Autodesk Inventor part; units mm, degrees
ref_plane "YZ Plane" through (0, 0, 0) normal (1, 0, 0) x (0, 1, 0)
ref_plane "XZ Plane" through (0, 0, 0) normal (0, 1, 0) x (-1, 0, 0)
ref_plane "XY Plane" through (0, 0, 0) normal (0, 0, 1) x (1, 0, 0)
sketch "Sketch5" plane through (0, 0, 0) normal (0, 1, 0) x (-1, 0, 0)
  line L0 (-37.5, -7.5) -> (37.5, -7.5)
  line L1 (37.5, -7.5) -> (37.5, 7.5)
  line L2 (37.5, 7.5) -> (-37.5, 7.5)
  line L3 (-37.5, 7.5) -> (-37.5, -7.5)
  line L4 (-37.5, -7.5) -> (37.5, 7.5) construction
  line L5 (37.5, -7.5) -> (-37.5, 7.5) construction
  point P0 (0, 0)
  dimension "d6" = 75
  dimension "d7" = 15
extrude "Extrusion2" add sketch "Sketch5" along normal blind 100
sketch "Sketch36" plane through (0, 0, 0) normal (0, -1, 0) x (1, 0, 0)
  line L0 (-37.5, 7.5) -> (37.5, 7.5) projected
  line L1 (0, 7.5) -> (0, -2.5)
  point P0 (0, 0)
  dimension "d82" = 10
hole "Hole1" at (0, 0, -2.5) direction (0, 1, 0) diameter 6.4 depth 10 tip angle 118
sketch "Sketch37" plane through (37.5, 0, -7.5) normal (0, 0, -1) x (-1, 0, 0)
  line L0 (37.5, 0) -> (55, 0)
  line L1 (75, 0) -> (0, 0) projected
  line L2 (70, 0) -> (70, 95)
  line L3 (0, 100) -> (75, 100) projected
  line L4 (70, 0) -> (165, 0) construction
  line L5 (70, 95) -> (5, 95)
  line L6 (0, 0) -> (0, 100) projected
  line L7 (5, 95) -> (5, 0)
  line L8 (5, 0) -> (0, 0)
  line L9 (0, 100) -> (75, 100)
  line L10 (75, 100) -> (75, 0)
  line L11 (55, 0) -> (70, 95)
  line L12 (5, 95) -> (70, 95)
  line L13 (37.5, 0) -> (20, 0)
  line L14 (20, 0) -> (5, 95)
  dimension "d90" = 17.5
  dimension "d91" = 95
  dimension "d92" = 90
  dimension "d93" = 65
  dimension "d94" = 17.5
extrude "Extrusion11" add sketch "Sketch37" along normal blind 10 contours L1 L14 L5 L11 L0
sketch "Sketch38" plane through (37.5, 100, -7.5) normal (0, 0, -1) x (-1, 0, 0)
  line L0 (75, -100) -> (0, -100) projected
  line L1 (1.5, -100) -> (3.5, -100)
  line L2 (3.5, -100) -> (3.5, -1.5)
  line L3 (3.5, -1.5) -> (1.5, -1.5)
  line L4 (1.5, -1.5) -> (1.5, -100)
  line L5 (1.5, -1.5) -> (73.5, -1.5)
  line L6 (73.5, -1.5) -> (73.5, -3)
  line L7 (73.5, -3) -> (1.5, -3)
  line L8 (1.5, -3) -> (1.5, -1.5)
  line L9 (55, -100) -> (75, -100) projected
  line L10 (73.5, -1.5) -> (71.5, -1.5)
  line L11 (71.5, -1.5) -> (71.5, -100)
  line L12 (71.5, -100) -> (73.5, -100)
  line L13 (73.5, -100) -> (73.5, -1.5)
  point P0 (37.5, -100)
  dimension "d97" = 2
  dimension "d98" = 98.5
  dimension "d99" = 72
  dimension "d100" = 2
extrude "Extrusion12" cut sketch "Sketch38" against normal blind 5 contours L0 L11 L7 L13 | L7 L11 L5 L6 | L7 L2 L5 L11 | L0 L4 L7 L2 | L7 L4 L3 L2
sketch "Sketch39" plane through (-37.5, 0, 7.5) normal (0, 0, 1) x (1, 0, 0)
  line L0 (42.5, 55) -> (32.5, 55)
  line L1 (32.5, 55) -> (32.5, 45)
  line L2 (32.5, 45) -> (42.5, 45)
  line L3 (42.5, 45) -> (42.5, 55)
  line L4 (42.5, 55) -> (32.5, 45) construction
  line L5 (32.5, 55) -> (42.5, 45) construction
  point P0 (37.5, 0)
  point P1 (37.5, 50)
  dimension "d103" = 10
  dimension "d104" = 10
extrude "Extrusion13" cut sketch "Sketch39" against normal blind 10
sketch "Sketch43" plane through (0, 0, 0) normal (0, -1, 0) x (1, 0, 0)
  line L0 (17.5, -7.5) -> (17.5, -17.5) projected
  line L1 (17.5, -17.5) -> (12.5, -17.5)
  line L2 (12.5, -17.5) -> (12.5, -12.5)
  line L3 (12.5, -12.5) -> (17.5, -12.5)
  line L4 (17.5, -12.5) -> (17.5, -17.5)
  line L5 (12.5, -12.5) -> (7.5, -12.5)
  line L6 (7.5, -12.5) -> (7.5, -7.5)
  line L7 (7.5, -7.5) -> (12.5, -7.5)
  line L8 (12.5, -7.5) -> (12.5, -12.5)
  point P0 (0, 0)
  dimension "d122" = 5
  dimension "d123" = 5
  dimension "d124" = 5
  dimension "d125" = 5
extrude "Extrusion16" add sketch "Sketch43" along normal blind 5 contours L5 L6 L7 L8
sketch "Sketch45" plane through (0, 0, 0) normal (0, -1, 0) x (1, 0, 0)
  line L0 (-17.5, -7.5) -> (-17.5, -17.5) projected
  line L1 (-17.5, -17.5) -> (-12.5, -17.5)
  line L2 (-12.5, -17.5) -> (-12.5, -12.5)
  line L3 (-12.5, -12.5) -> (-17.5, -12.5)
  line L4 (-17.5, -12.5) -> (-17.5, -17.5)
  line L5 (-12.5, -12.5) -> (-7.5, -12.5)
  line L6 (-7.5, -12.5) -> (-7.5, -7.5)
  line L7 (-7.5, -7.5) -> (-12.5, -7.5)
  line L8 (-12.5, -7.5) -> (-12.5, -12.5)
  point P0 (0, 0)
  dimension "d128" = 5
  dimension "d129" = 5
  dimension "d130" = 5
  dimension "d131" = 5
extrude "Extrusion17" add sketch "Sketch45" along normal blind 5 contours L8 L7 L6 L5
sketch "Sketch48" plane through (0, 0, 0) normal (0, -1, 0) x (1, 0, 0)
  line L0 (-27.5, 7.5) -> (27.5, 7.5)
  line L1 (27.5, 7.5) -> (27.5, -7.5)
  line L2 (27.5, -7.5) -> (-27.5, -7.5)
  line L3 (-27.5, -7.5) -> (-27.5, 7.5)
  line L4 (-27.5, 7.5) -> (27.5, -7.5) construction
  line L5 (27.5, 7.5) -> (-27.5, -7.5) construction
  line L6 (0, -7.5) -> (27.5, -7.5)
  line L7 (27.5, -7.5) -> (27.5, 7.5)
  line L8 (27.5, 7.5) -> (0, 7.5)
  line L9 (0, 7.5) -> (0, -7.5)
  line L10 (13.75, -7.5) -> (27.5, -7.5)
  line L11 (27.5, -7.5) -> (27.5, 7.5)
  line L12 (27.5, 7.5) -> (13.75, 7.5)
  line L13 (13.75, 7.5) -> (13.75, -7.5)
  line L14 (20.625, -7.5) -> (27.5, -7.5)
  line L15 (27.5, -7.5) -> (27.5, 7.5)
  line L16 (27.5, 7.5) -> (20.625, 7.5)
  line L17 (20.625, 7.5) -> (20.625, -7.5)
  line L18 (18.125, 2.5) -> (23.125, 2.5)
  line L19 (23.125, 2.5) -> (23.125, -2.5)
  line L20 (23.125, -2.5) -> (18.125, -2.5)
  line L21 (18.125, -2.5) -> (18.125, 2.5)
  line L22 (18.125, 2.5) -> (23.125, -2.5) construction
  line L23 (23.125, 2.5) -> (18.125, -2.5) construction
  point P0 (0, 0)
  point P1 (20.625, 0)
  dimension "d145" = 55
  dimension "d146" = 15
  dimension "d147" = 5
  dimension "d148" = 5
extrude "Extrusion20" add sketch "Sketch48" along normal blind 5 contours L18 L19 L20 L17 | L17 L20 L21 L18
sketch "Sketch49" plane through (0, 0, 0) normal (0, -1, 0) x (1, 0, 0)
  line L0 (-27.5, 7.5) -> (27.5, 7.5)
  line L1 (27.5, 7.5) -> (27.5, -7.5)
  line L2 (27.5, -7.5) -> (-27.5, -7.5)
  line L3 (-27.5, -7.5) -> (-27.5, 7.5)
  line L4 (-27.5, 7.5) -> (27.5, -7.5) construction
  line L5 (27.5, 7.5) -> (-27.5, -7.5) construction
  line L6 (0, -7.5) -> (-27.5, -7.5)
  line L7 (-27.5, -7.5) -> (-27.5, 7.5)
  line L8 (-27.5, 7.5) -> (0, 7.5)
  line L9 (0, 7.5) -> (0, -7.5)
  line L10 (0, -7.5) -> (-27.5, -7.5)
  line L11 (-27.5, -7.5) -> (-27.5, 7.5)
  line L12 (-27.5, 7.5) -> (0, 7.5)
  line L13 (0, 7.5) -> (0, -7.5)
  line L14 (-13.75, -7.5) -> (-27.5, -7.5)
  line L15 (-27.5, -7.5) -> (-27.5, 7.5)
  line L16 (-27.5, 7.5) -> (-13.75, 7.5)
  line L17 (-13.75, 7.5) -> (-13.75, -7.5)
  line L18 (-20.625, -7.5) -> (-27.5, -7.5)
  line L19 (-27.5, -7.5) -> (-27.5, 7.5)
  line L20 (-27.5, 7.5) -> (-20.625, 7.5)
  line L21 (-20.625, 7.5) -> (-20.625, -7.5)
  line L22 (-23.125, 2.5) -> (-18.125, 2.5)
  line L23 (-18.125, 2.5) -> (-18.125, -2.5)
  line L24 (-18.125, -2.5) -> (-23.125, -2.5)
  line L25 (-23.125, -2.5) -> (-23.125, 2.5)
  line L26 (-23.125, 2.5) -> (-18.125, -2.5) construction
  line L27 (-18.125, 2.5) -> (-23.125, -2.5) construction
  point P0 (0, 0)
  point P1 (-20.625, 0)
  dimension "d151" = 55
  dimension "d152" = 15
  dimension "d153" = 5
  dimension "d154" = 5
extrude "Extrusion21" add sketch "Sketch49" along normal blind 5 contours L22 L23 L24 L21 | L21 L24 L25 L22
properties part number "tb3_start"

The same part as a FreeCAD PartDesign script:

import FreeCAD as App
import Part
import Sketcher

doc = App.newDocument("Part")
body = doc.addObject("PartDesign::Body", "Body")

# Sketch on XZ plane
sketch1 = doc.addObject("Sketcher::SketchObject", "Sketch")
body.addObject(sketch1)
sketch1.AttachmentSupport = (doc.XZ_Plane, [""])
sketch1.MapMode = "FlatFace"
sketch1.addGeometry([
    Part.LineSegment(App.Vector(37.5, 7.5, 0), App.Vector(37.5, -7.5, 0)),
    Part.LineSegment(App.Vector(37.5, -7.5, 0), App.Vector(-37.5, -7.5, 0)),
    Part.LineSegment(App.Vector(-37.5, -7.5, 0), App.Vector(-37.5, 7.5, 0)),
    Part.LineSegment(App.Vector(-37.5, 7.5, 0), App.Vector(37.5, 7.5, 0)),
], False)
sketch1.addConstraint([
    Sketcher.Constraint("Coincident", 0, 2, 1, 1),
    Sketcher.Constraint("Coincident", 1, 2, 2, 1),
    Sketcher.Constraint("Coincident", 2, 2, 3, 1),
    Sketcher.Constraint("Coincident", 3, 2, 0, 1),
    Sketcher.Constraint("Vertical", 0),
    Sketcher.Constraint("Horizontal", 1),
    Sketcher.Constraint("Vertical", 2),
    Sketcher.Constraint("Horizontal", 3),
    Sketcher.Constraint("Symmetric", 0, 2, 2, 2, -1, 1),
    Sketcher.Constraint("DistanceX", 1, 2, 1, 1, 75.0),
    Sketcher.Constraint("DistanceY", 0, 2, 0, 1, 15.0),
])
pad1 = doc.addObject("PartDesign::Pad", "Pad")
body.addObject(pad1)
pad1.Profile = sketch1
pad1.Length = 100
pad1.Reversed = True

# Sketch on XZ plane
sketch2 = doc.addObject("Sketcher::SketchObject", "Sketch001")
body.addObject(sketch2)
sketch2.AttachmentSupport = (doc.XZ_Plane, [""])
sketch2.MapMode = "FlatFace"
sketch2.addGeometry(Part.Circle(App.Vector(0, -2.5, 0), App.Vector(0, 0, 1), 3.2), False)
sketch2.addConstraint([
    Sketcher.Constraint("PointOnObject", 0, 3, -2),
    Sketcher.Constraint("Diameter", 0, 6.4),
    Sketcher.Constraint("DistanceY", 0, 3, -1, 1, 2.5),
])
doc.recompute()
hole = doc.addObject("PartDesign::Hole", "Hole")
body.addObject(hole)
hole.Profile = sketch2
hole.ThreadType = "None"
hole.Diameter = 6.4
hole.DepthType = "Dimension"
hole.Depth = 10
hole.DrillPoint = "Angled"
hole.DrillPointAngle = 118

# Sketch on XY plane
sketch3 = doc.addObject("Sketcher::SketchObject", "Sketch002")
body.addObject(sketch3)
sketch3.AttachmentSupport = (doc.XY_Plane, [""])
sketch3.MapMode = "FlatFace"
sketch3.AttachmentOffset = App.Placement(App.Vector(0, 0, -7.5), App.Rotation())
sketch3.addGeometry([
    Part.LineSegment(App.Vector(17.5, 0, 0), App.Vector(-17.5, 0, 0)),
    Part.LineSegment(App.Vector(-17.5, 0, 0), App.Vector(-32.5, 95, 0)),
    Part.LineSegment(App.Vector(-32.5, 95, 0), App.Vector(32.5, 95, 0)),
    Part.LineSegment(App.Vector(32.5, 95, 0), App.Vector(17.5, 0, 0)),
], False)
sketch3.addConstraint([
    Sketcher.Constraint("Coincident", 0, 2, 1, 1),
    Sketcher.Constraint("Coincident", 1, 2, 2, 1),
    Sketcher.Constraint("Coincident", 2, 2, 3, 1),
    Sketcher.Constraint("Coincident", 3, 2, 0, 1),
    Sketcher.Constraint("Horizontal", 0),
    Sketcher.Constraint("Horizontal", 2),
    Sketcher.Constraint("Symmetric", 0, 2, 3, 2, -1, 1),
    Sketcher.Constraint("Equal", 1, 3),
    Sketcher.Constraint("DistanceX", 2, 1, 2, 2, 65.0),
    Sketcher.Constraint("DistanceY", -1, 1, 1, 2, 95.0),
    Sketcher.Constraint("DistanceX", 0, 2, -1, 1, 17.5),
])
pad2 = doc.addObject("PartDesign::Pad", "Pad001")
body.addObject(pad2)
pad2.Profile = sketch3
pad2.Length = 10
pad2.Reversed = True

# Sketch on XY plane
sketch4 = doc.addObject("Sketcher::SketchObject", "Sketch003")
body.addObject(sketch4)
sketch4.AttachmentSupport = (doc.XY_Plane, [""])
sketch4.MapMode = "FlatFace"
sketch4.AttachmentOffset = App.Placement(App.Vector(0, 0, -7.5), App.Rotation())
sketch4.addGeometry([
    Part.LineSegment(App.Vector(-34, 0, 0), App.Vector(-36, 0, 0)),  # 0
    Part.LineSegment(App.Vector(-36, 0, 0), App.Vector(-36, 98.5, 0)),  # 1
    Part.LineSegment(App.Vector(-36, 98.5, 0), App.Vector(36, 98.5, 0)),  # 2
    Part.LineSegment(App.Vector(36, 98.5, 0), App.Vector(36, 0, 0)),  # 3
    Part.LineSegment(App.Vector(36, 0, 0), App.Vector(34, 0, 0)),  # 4
    Part.LineSegment(App.Vector(34, 0, 0), App.Vector(34, 97, 0)),  # 5
    Part.LineSegment(App.Vector(34, 97, 0), App.Vector(-34, 97, 0)),  # 6
    Part.LineSegment(App.Vector(-34, 97, 0), App.Vector(-34, 0, 0)),  # 7
], False)
sketch4.addConstraint([
    Sketcher.Constraint("Coincident", 0, 2, 1, 1),
    Sketcher.Constraint("Coincident", 1, 2, 2, 1),
    Sketcher.Constraint("Coincident", 2, 2, 3, 1),
    Sketcher.Constraint("Coincident", 3, 2, 4, 1),
    Sketcher.Constraint("Coincident", 4, 2, 5, 1),
    Sketcher.Constraint("Coincident", 5, 2, 6, 1),
    Sketcher.Constraint("Coincident", 6, 2, 7, 1),
    Sketcher.Constraint("Coincident", 7, 2, 0, 1),
    Sketcher.Constraint("Horizontal", 0),
    Sketcher.Constraint("Vertical", 1),
    Sketcher.Constraint("Horizontal", 2),
    Sketcher.Constraint("Vertical", 3),
    Sketcher.Constraint("Horizontal", 4),
    Sketcher.Constraint("Vertical", 5),
    Sketcher.Constraint("Horizontal", 6),
    Sketcher.Constraint("Vertical", 7),
    Sketcher.Constraint("Symmetric", 0, 2, 3, 2, -1, 1),
    Sketcher.Constraint("Symmetric", 4, 2, 7, 2, -2),
    Sketcher.Constraint("DistanceX", 0, 2, 0, 1, 2.0),
    Sketcher.Constraint("DistanceX", 2, 1, 2, 2, 72.0),
    Sketcher.Constraint("DistanceY", 1, 1, 1, 2, 98.5),
    Sketcher.Constraint("DistanceY", 5, 1, 5, 2, 97.0),
])
pocket1 = doc.addObject("PartDesign::Pocket", "Pocket")
body.addObject(pocket1)
pocket1.Profile = sketch4
pocket1.Length = 5
pocket1.Reversed = True

# Sketch on XY plane
sketch5 = doc.addObject("Sketcher::SketchObject", "Sketch004")
body.addObject(sketch5)
sketch5.AttachmentSupport = (doc.XY_Plane, [""])
sketch5.MapMode = "FlatFace"
sketch5.AttachmentOffset = App.Placement(App.Vector(0, 0, 7.5), App.Rotation())
sketch5.addGeometry([
    Part.LineSegment(App.Vector(5, 45, 0), App.Vector(5, 55, 0)),
    Part.LineSegment(App.Vector(5, 55, 0), App.Vector(-5, 55, 0)),
    Part.LineSegment(App.Vector(-5, 55, 0), App.Vector(-5, 45, 0)),
    Part.LineSegment(App.Vector(-5, 45, 0), App.Vector(5, 45, 0)),
], False)
sketch5.addConstraint([
    Sketcher.Constraint("Coincident", 0, 2, 1, 1),
    Sketcher.Constraint("Coincident", 1, 2, 2, 1),
    Sketcher.Constraint("Coincident", 2, 2, 3, 1),
    Sketcher.Constraint("Coincident", 3, 2, 0, 1),
    Sketcher.Constraint("Vertical", 0),
    Sketcher.Constraint("Horizontal", 1),
    Sketcher.Constraint("Vertical", 2),
    Sketcher.Constraint("Horizontal", 3),
    Sketcher.Constraint("Equal", 3, 0),
    Sketcher.Constraint("DistanceX", 1, 2, 1, 1, 10.0),
    Sketcher.Constraint("DistanceX", -1, 1, 0, 2, 5.0),
    Sketcher.Constraint("DistanceY", -1, 1, 0, 2, 55.0),
])
pocket2 = doc.addObject("PartDesign::Pocket", "Pocket001")
body.addObject(pocket2)
pocket2.Profile = sketch5
pocket2.Length = 10

# Sketch on XZ plane
sketch6 = doc.addObject("Sketcher::SketchObject", "Sketch005")
body.addObject(sketch6)
sketch6.AttachmentSupport = (doc.XZ_Plane, [""])
sketch6.MapMode = "FlatFace"
sketch6.addGeometry([
    Part.LineSegment(App.Vector(7.5, -12.5, 0), App.Vector(12.5, -12.5, 0)),
    Part.LineSegment(App.Vector(12.5, -12.5, 0), App.Vector(12.5, -7.5, 0)),
    Part.LineSegment(App.Vector(12.5, -7.5, 0), App.Vector(7.5, -7.5, 0)),
    Part.LineSegment(App.Vector(7.5, -7.5, 0), App.Vector(7.5, -12.5, 0)),
], False)
sketch6.addConstraint([
    Sketcher.Constraint("Coincident", 0, 2, 1, 1),
    Sketcher.Constraint("Coincident", 1, 2, 2, 1),
    Sketcher.Constraint("Coincident", 2, 2, 3, 1),
    Sketcher.Constraint("Coincident", 3, 2, 0, 1),
    Sketcher.Constraint("Horizontal", 0),
    Sketcher.Constraint("Vertical", 1),
    Sketcher.Constraint("Horizontal", 2),
    Sketcher.Constraint("Vertical", 3),
    Sketcher.Constraint("Equal", 2, 1),
    Sketcher.Constraint("DistanceX", 0, 1, 0, 2, 5.0),
    Sketcher.Constraint("DistanceX", -1, 1, 0, 2, 12.5),
    Sketcher.Constraint("DistanceY", 0, 2, -1, 1, 12.5),
])
pad3 = doc.addObject("PartDesign::Pad", "Pad002")
body.addObject(pad3)
pad3.Profile = sketch6
pad3.Length = 5

# Sketch on XZ plane
sketch7 = doc.addObject("Sketcher::SketchObject", "Sketch006")
body.addObject(sketch7)
sketch7.AttachmentSupport = (doc.XZ_Plane, [""])
sketch7.MapMode = "FlatFace"
sketch7.addGeometry([
    Part.LineSegment(App.Vector(-12.5, -7.5, 0), App.Vector(-12.5, -12.5, 0)),
    Part.LineSegment(App.Vector(-12.5, -12.5, 0), App.Vector(-7.5, -12.5, 0)),
    Part.LineSegment(App.Vector(-7.5, -12.5, 0), App.Vector(-7.5, -7.5, 0)),
    Part.LineSegment(App.Vector(-7.5, -7.5, 0), App.Vector(-12.5, -7.5, 0)),
], False)
sketch7.addConstraint([
    Sketcher.Constraint("Coincident", 0, 2, 1, 1),
    Sketcher.Constraint("Coincident", 1, 2, 2, 1),
    Sketcher.Constraint("Coincident", 2, 2, 3, 1),
    Sketcher.Constraint("Coincident", 3, 2, 0, 1),
    Sketcher.Constraint("Vertical", 0),
    Sketcher.Constraint("Horizontal", 1),
    Sketcher.Constraint("Vertical", 2),
    Sketcher.Constraint("Horizontal", 3),
    Sketcher.Constraint("Equal", 3, 0),
    Sketcher.Constraint("DistanceX", 1, 1, 1, 2, 5.0),
    Sketcher.Constraint("DistanceX", 0, 2, -1, 1, 12.5),
    Sketcher.Constraint("DistanceY", 0, 2, -1, 1, 12.5),
])
pad4 = doc.addObject("PartDesign::Pad", "Pad003")
body.addObject(pad4)
pad4.Profile = sketch7
pad4.Length = 5

# Sketch on XZ plane
sketch8 = doc.addObject("Sketcher::SketchObject", "Sketch007")
body.addObject(sketch8)
sketch8.AttachmentSupport = (doc.XZ_Plane, [""])
sketch8.MapMode = "FlatFace"
sketch8.addGeometry([
    Part.LineSegment(App.Vector(23.125, 2.5, 0), App.Vector(18.125, 2.5, 0)),
    Part.LineSegment(App.Vector(18.125, 2.5, 0), App.Vector(18.125, -2.5, 0)),
    Part.LineSegment(App.Vector(18.125, -2.5, 0), App.Vector(23.125, -2.5, 0)),
    Part.LineSegment(App.Vector(23.125, -2.5, 0), App.Vector(23.125, 2.5, 0)),
], False)
sketch8.addConstraint([
    Sketcher.Constraint("Coincident", 0, 2, 1, 1),
    Sketcher.Constraint("Coincident", 1, 2, 2, 1),
    Sketcher.Constraint("Coincident", 2, 2, 3, 1),
    Sketcher.Constraint("Coincident", 3, 2, 0, 1),
    Sketcher.Constraint("Horizontal", 0),
    Sketcher.Constraint("Vertical", 1),
    Sketcher.Constraint("Horizontal", 2),
    Sketcher.Constraint("Vertical", 3),
    Sketcher.Constraint("Equal", 2, 1),
    Sketcher.Constraint("DistanceX", 0, 2, 0, 1, 5.0),
    Sketcher.Constraint("DistanceY", -1, 1, 0, 2, 2.5),
    Sketcher.Constraint("DistanceX", -1, 1, 0, 2, 18.125),
])
pad5 = doc.addObject("PartDesign::Pad", "Pad004")
body.addObject(pad5)
pad5.Profile = sketch8
pad5.Length = 5

# Sketch on XZ plane
sketch9 = doc.addObject("Sketcher::SketchObject", "Sketch008")
body.addObject(sketch9)
sketch9.AttachmentSupport = (doc.XZ_Plane, [""])
sketch9.MapMode = "FlatFace"
sketch9.addGeometry([
    Part.LineSegment(App.Vector(-18.125, 2.5, 0), App.Vector(-23.125, 2.5, 0)),
    Part.LineSegment(App.Vector(-23.125, 2.5, 0), App.Vector(-23.125, -2.5, 0)),
    Part.LineSegment(App.Vector(-23.125, -2.5, 0), App.Vector(-18.125, -2.5, 0)),
    Part.LineSegment(App.Vector(-18.125, -2.5, 0), App.Vector(-18.125, 2.5, 0)),
], False)
sketch9.addConstraint([
    Sketcher.Constraint("Coincident", 0, 2, 1, 1),
    Sketcher.Constraint("Coincident", 1, 2, 2, 1),
    Sketcher.Constraint("Coincident", 2, 2, 3, 1),
    Sketcher.Constraint("Coincident", 3, 2, 0, 1),
    Sketcher.Constraint("Horizontal", 0),
    Sketcher.Constraint("Vertical", 1),
    Sketcher.Constraint("Horizontal", 2),
    Sketcher.Constraint("Vertical", 3),
    Sketcher.Constraint("Equal", 2, 1),
    Sketcher.Constraint("DistanceX", 0, 2, 0, 1, 5.0),
    Sketcher.Constraint("DistanceY", -1, 1, 0, 2, 2.5),
    Sketcher.Constraint("DistanceX", 0, 2, -1, 1, 23.125),
])
pad6 = doc.addObject("PartDesign::Pad", "Pad005")
body.addObject(pad6)
pad6.Profile = sketch9
pad6.Length = 5

doc.recompute()
